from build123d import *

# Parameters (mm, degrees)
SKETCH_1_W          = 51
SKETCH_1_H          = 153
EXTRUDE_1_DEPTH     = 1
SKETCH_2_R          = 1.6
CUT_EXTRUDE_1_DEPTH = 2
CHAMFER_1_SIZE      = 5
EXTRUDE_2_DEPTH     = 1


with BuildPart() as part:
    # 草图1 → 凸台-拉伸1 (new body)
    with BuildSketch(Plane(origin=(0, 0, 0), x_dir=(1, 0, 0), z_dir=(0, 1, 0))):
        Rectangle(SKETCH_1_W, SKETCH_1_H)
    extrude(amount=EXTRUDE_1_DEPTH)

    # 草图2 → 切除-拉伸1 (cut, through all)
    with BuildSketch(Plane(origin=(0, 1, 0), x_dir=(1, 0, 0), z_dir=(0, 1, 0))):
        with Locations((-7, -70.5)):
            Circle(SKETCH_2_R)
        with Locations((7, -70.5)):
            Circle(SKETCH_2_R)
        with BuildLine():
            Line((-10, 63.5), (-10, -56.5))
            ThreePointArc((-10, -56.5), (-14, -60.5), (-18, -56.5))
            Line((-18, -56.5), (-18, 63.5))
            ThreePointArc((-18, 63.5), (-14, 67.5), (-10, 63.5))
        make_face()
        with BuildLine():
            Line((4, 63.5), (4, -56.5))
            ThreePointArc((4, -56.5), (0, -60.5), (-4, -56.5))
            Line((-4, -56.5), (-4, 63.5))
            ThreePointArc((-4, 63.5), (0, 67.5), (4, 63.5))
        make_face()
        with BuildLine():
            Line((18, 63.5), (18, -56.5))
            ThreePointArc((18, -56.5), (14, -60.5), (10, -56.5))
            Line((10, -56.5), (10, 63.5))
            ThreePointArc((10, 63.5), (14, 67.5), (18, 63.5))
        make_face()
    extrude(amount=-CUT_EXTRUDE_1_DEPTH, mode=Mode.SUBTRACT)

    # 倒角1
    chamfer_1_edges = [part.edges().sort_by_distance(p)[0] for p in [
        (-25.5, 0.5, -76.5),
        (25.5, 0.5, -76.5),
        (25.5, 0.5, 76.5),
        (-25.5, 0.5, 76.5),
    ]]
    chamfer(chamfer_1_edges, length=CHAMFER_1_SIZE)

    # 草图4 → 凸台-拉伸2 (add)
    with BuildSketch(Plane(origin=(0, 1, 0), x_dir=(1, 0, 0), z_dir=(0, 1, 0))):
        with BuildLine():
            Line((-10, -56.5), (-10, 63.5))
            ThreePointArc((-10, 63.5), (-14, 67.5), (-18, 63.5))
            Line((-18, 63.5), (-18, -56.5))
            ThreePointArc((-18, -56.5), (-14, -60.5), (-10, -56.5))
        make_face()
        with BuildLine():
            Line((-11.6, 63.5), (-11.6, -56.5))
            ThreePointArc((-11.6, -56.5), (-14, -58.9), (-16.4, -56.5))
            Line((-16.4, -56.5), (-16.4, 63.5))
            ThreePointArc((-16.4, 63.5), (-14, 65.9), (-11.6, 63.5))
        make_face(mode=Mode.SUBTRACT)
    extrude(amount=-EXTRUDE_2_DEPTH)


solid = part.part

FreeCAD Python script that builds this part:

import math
import FreeCAD as App
import Part
import Sketcher


def edges_at(feature, points):
    """Names of the edges that pass closest to the given points."""
    edges = feature.Shape.Edges
    near = lambda p: min(range(len(edges)), key=lambda i: edges[i].distToShape(Part.Vertex(*p))[0])
    return sorted({f"Edge{near(p) + 1}" for p in points})


def add_polygon(sketch, points):
    """Adds a closed chain of lines whose ends are joined by coincident constraints."""
    first, n = sketch.GeometryCount, len(points)
    for a, b in zip(points, points[1:] + points[:1]):
        sketch.addGeometry(Part.LineSegment(App.Vector(*a, 0), App.Vector(*b, 0)), False)
    for i in range(n):
        sketch.addConstraint(Sketcher.Constraint("Coincident", first + i, 2, first + (i + 1) % n, 1))

doc = App.newDocument("Part")
body = doc.addObject("PartDesign::Body", "Body")

sketch1 = body.newObject("Sketcher::SketchObject", "Sketch")
sketch1.AttachmentSupport = (doc.getObject("XZ_Plane"), [""])
sketch1.MapMode = "FlatFace"
add_polygon(sketch1, [(-26, -76), (-26, 76), (26, 76), (26, -76)])
sketch1.addConstraint([
    Sketcher.Constraint("Vertical", 0),
    Sketcher.Constraint("Horizontal", 1),
    Sketcher.Constraint("Vertical", 2),
    Sketcher.Constraint("Horizontal", 3),
    Sketcher.Constraint("Symmetric", 0, 2, 2, 2, -1, 1),
    Sketcher.Constraint("DistanceX", 1, 1, 1, 2, 51.0),
    Sketcher.Constraint("DistanceY", 0, 1, 0, 2, 153.0),
])
pad1 = body.newObject("PartDesign::Pad", "Pad")
pad1.Profile = sketch1
pad1.Length = 1
pad1.Reversed = True

sketch2 = body.newObject("Sketcher::SketchObject", "Sketch001")
sketch2.AttachmentSupport = (doc.getObject("XZ_Plane"), [""])
sketch2.MapMode = "FlatFace"
sketch2.AttachmentOffset = App.Placement(App.Vector(0, 0, -1), App.Rotation())
sketch2.addGeometry([
    Part.Circle(App.Vector(-7, 70.5, 0), App.Vector(0, 0, 1), 1.6),
    Part.Circle(App.Vector(7, 70.5, 0), App.Vector(0, 0, 1), 1.6),
    Part.LineSegment(App.Vector(-10, 56.5, 0), App.Vector(-10, -63.5, 0)),
    Part.ArcOfCircle(Part.Circle(App.Vector(-14, -63.5, 0), App.Vector(0, 0, 1), 4), math.radians(180), math.radians(360)),
    Part.LineSegment(App.Vector(-18, -63.5, 0), App.Vector(-18, 56.5, 0)),
    Part.ArcOfCircle(Part.Circle(App.Vector(-14, 56.5, 0), App.Vector(0, 0, 1), 4), math.radians(0), math.radians(180)),
    Part.LineSegment(App.Vector(4, 56.5, 0), App.Vector(4, -63.5, 0)),
    Part.ArcOfCircle(Part.Circle(App.Vector(0, -63.5, 0), App.Vector(0, 0, 1), 4), math.radians(180), math.radians(360)),
    Part.LineSegment(App.Vector(-4, -63.5, 0), App.Vector(-4, 56.5, 0)),
    Part.ArcOfCircle(Part.Circle(App.Vector(0, 56.5, 0), App.Vector(0, 0, 1), 4), math.radians(0), math.radians(180)),
    Part.LineSegment(App.Vector(18, 56.5, 0), App.Vector(18, -63.5, 0)),
    Part.ArcOfCircle(Part.Circle(App.Vector(14, -63.5, 0), App.Vector(0, 0, 1), 4), math.radians(180), math.radians(360)),
    Part.LineSegment(App.Vector(10, -63.5, 0), App.Vector(10, 56.5, 0)),
    Part.ArcOfCircle(Part.Circle(App.Vector(14, 56.5, 0), App.Vector(0, 0, 1), 4), math.radians(0), math.radians(180)),
], False)
sketch2.addConstraint([
    Sketcher.Constraint("Tangent", 2, 2, 3, 2),
    Sketcher.Constraint("Tangent", 3, 1, 4, 1),
    Sketcher.Constraint("Tangent", 4, 2, 5, 2),
    Sketcher.Constraint("Tangent", 5, 1, 2, 1),
    Sketcher.Constraint("Tangent", 6, 2, 7, 2),
    Sketcher.Constraint("Tangent", 7, 1, 8, 1),
    Sketcher.Constraint("Tangent", 8, 2, 9, 2),
    Sketcher.Constraint("Tangent", 9, 1, 6, 1),
    Sketcher.Constraint("Tangent", 10, 2, 11, 2),
    Sketcher.Constraint("Tangent", 11, 1, 12, 1),
    Sketcher.Constraint("Tangent", 12, 2, 13, 2),
    Sketcher.Constraint("Tangent", 13, 1, 10, 1),
    Sketcher.Constraint("Vertical", 2),
    Sketcher.Constraint("Vertical", 4),
    Sketcher.Constraint("Vertical", 6),
    Sketcher.Constraint("Vertical", 8),
    Sketcher.Constraint("Vertical", 10),
    Sketcher.Constraint("Vertical", 12),
    Sketcher.Constraint("Equal", 0, 1),
    Sketcher.Constraint("Equal", 5, 7),
    Sketcher.Constraint("Equal", 9, 11),
    Sketcher.Constraint("Symmetric", 0, 3, 1, 3, -2),
    Sketcher.Constraint("Symmetric", 3, 3, 11, 3, -2),
    Sketcher.Constraint("PointOnObject", 7, 3, -2),
    Sketcher.Constraint("Horizontal", 3, 3, 7, 3),
    Sketcher.Constraint("Horizontal", 5, 3, 9, 3),
    Sketcher.Constraint("Horizontal", 9, 3, 13, 3),
    Sketcher.Constraint("Radius", 3, 4.0),
    Sketcher.Constraint("Diameter", 0, 3.2),
    Sketcher.Constraint("DistanceY", 2, 2, 2, 1, 120.0),
    Sketcher.Constraint("DistanceX", 0, 3, -1, 1, 7.0),
    Sketcher.Constraint("DistanceX", 3, 3, -1, 1, 14.0),
    Sketcher.Constraint("DistanceY", 3, 3, 0, 3, 134.0),
    Sketcher.Constraint("DistanceY", -1, 1, 0, 3, 70.5),
])
pocket1 = body.newObject("PartDesign::Pocket", "Pocket")
pocket1.Profile = sketch2
pocket1.Type = "ThroughAll"
pocket1.Reversed = True
doc.recompute()

chamfer = body.newObject("PartDesign::Chamfer", "Chamfer")
chamfer.Base = (pocket1, edges_at(pocket1, [
    (-25.5, 0.5, -76.5),
    (25.5, 0.5, -76.5),
    (25.5, 0.5, 76.5),
    (-25.5, 0.5, 76.5),
]))
chamfer.Size = 5

sketch3 = body.newObject("Sketcher::SketchObject", "Sketch002")
sketch3.AttachmentSupport = (doc.getObject("XZ_Plane"), [""])
sketch3.MapMode = "FlatFace"
sketch3.AttachmentOffset = App.Placement(App.Vector(0, 0, -1), App.Rotation())
sketch3.addGeometry([
    Part.LineSegment(App.Vector(-10, 56.5, 0), App.Vector(-10, -63.5, 0)),
    Part.ArcOfCircle(Part.Circle(App.Vector(-14, -63.5, 0), App.Vector(0, 0, 1), 4), math.radians(180), math.radians(360)),
    Part.LineSegment(App.Vector(-18, -63.5, 0), App.Vector(-18, 56.5, 0)),
    Part.ArcOfCircle(Part.Circle(App.Vector(-14, 56.5, 0), App.Vector(0, 0, 1), 4), math.radians(0), math.radians(180)),
    Part.ArcOfCircle(Part.Circle(App.Vector(-14, -63.5, 0), App.Vector(0, 0, 1), 2.4), math.radians(180), math.radians(360)),
    Part.LineSegment(App.Vector(-11.6, -63.5, 0), App.Vector(-11.6, 56.5, 0)),
    Part.ArcOfCircle(Part.Circle(App.Vector(-14, 56.5, 0), App.Vector(0, 0, 1), 2.4), math.radians(0), math.radians(180)),
    Part.LineSegment(App.Vector(-16.4, 56.5, 0), App.Vector(-16.4, -63.5, 0)),
], False)
sketch3.addConstraint([
    Sketcher.Constraint("Tangent", 0, 2, 1, 2),
    Sketcher.Constraint("Tangent", 1, 1, 2, 1),
    Sketcher.Constraint("Tangent", 2, 2, 3, 2),
    Sketcher.Constraint("Tangent", 3, 1, 0, 1),
    Sketcher.Constraint("Tangent", 4, 2, 5, 1),
    Sketcher.Constraint("Tangent", 5, 2, 6, 1),
    Sketcher.Constraint("Tangent", 6, 2, 7, 1),
    Sketcher.Constraint("Tangent", 7, 2, 4, 1),
    Sketcher.Constraint("Vertical", 0),
    Sketcher.Constraint("Vertical", 2),
    Sketcher.Constraint("Vertical", 5),
    Sketcher.Constraint("Vertical", 7),
    Sketcher.Constraint("Coincident", 4, 3, 1, 3),
    Sketcher.Constraint("Horizontal", 6, 3, 2, 2),
    Sketcher.Constraint("Radius", 1, 4.0),
    Sketcher.Constraint("Radius", 4, 2.4),
    Sketcher.Constraint("DistanceY", 0, 2, 0, 1, 120.0),
    Sketcher.Constraint("DistanceX", 1, 3, -1, 1, 14.0),
    Sketcher.Constraint("DistanceY", 1, 3, -1, 1, 63.5),
])
pad2 = body.newObject("PartDesign::Pad", "Pad001")
pad2.Profile = sketch3
pad2.Length = 1

doc.recompute()
